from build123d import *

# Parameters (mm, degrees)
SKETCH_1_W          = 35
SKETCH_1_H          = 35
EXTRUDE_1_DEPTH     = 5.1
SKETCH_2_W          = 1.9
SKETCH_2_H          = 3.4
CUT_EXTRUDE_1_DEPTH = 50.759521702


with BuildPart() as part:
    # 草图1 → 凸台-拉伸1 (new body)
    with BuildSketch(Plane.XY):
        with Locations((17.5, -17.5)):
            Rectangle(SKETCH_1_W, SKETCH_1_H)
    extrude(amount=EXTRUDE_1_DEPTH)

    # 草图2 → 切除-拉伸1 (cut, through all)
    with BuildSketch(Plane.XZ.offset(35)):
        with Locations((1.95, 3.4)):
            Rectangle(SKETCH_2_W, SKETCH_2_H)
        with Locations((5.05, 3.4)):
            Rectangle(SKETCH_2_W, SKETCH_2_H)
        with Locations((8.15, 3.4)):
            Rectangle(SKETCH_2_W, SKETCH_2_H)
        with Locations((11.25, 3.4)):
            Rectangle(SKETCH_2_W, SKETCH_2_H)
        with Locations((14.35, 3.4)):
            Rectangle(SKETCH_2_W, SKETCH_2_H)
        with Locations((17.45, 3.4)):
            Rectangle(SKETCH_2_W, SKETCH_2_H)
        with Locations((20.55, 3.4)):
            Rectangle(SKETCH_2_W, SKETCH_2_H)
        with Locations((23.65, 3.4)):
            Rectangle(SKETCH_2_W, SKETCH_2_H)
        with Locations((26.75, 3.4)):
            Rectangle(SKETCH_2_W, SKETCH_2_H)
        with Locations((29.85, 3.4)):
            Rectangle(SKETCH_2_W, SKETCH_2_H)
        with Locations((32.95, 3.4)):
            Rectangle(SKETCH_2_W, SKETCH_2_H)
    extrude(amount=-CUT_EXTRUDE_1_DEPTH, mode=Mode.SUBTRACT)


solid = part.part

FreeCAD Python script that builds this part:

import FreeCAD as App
import Part
import Sketcher
from FreeCAD import Vector
Q = App.Units.Quantity

doc = App.newDocument("Part")
params = doc.addObject("Spreadsheet::Sheet", "Params")
for row, (alias, value) in enumerate([
    ("sketch1_width", "35 mm"),
    ("pad1_length", "5.1 mm"),
    ("sketch2_width", "1.9 mm"),
    ("sketch2_height", "3.4 mm"),
], start=1):
    params.set(f"A{row}", alias)
    params.set(f"B{row}", "=" + value)
    params.setAlias(f"B{row}", alias)

body = doc.addObject("PartDesign::Body", "Body")

sketch1 = body.newObject("Sketcher::SketchObject", "Sketch")
sketch1.AttachmentSupport = (doc.getObject("XY_Plane"), [""])
sketch1.MapMode = "FlatFace"
sketch1.addGeometry(Part.LineSegment(Vector(0, 0, 0), Vector(0, -35, 0)), False)
sketch1.addGeometry(Part.LineSegment(Vector(0, -35, 0), Vector(35, -35, 0)), False)
sketch1.addGeometry(Part.LineSegment(Vector(35, -35, 0), Vector(35, 0, 0)), False)
sketch1.addGeometry(Part.LineSegment(Vector(35, 0, 0), Vector(0, 0, 0)), False)
sketch1.addConstraint(Sketcher.Constraint("Coincident", 0, 2, 1, 1))
sketch1.addConstraint(Sketcher.Constraint("Coincident", 1, 2, 2, 1))
sketch1.addConstraint(Sketcher.Constraint("Coincident", 2, 2, 3, 1))
sketch1.addConstraint(Sketcher.Constraint("Coincident", 3, 2, 0, 1))
sketch1.addConstraint(Sketcher.Constraint("Vertical", 0))
sketch1.addConstraint(Sketcher.Constraint("Horizontal", 1))
sketch1.addConstraint(Sketcher.Constraint("Vertical", 2))
sketch1.addConstraint(Sketcher.Constraint("Horizontal", 3))
sketch1.addConstraint(Sketcher.Constraint("Coincident", 3, 2, -1, 1))
sketch1.addConstraint(Sketcher.Constraint("Equal", 3, 0))
sketch1.addConstraint(Sketcher.Constraint("DistanceX", 1, 1, 1, 2, Q("35 mm")))
sketch1.setExpression("Constraints[10]", "Params.sketch1_width")
pad1 = body.newObject("PartDesign::Pad", "Pad")
pad1.Profile = sketch1
pad1.setExpression("Length", "Params.pad1_length")

sketch2 = body.newObject("Sketcher::SketchObject", "Sketch001")
sketch2.AttachmentSupport = (doc.getObject("XZ_Plane"), [""])
sketch2.MapMode = "FlatFace"
sketch2.AttachmentOffset = App.Placement(Vector(0, 0, 35), App.Rotation())
sketch2.addGeometry(Part.LineSegment(Vector(1, 5.1, 0), Vector(1, 1.7, 0)), False)
sketch2.addGeometry(Part.LineSegment(Vector(1, 1.7, 0), Vector(2.9, 1.7, 0)), False)
sketch2.addGeometry(Part.LineSegment(Vector(2.9, 1.7, 0), Vector(2.9, 5.1, 0)), False)
sketch2.addGeometry(Part.LineSegment(Vector(2.9, 5.1, 0), Vector(1, 5.1, 0)), False)
sketch2.addGeometry(Part.LineSegment(Vector(4.1, 5.1, 0), Vector(4.1, 1.7, 0)), False)
sketch2.addGeometry(Part.LineSegment(Vector(4.1, 1.7, 0), Vector(6, 1.7, 0)), False)
sketch2.addGeometry(Part.LineSegment(Vector(6, 1.7, 0), Vector(6, 5.1, 0)), False)
sketch2.addGeometry(Part.LineSegment(Vector(6, 5.1, 0), Vector(4.1, 5.1, 0)), False)
sketch2.addGeometry(Part.LineSegment(Vector(7.2, 5.1, 0), Vector(7.2, 1.7, 0)), False)
sketch2.addGeometry(Part.LineSegment(Vector(7.2, 1.7, 0), Vector(9.1, 1.7, 0)), False)
sketch2.addGeometry(Part.LineSegment(Vector(9.1, 1.7, 0), Vector(9.1, 5.1, 0)), False)
sketch2.addGeometry(Part.LineSegment(Vector(9.1, 5.1, 0), Vector(7.2, 5.1, 0)), False)
sketch2.addGeometry(Part.LineSegment(Vector(10.3, 5.1, 0), Vector(10.3, 1.7, 0)), False)
sketch2.addGeometry(Part.LineSegment(Vector(10.3, 1.7, 0), Vector(12.2, 1.7, 0)), False)
sketch2.addGeometry(Part.LineSegment(Vector(12.2, 1.7, 0), Vector(12.2, 5.1, 0)), False)
sketch2.addGeometry(Part.LineSegment(Vector(12.2, 5.1, 0), Vector(10.3, 5.1, 0)), False)
sketch2.addGeometry(Part.LineSegment(Vector(13.4, 5.1, 0), Vector(13.4, 1.7, 0)), False)
sketch2.addGeometry(Part.LineSegment(Vector(13.4, 1.7, 0), Vector(15.3, 1.7, 0)), False)
sketch2.addGeometry(Part.LineSegment(Vector(15.3, 1.7, 0), Vector(15.3, 5.1, 0)), False)
sketch2.addGeometry(Part.LineSegment(Vector(15.3, 5.1, 0), Vector(13.4, 5.1, 0)), False)
sketch2.addGeometry(Part.LineSegment(Vector(16.5, 5.1, 0), Vector(16.5, 1.7, 0)), False)
sketch2.addGeometry(Part.LineSegment(Vector(16.5, 1.7, 0), Vector(18.4, 1.7, 0)), False)
sketch2.addGeometry(Part.LineSegment(Vector(18.4, 1.7, 0), Vector(18.4, 5.1, 0)), False)
sketch2.addGeometry(Part.LineSegment(Vector(18.4, 5.1, 0), Vector(16.5, 5.1, 0)), False)
sketch2.addGeometry(Part.LineSegment(Vector(19.6, 5.1, 0), Vector(19.6, 1.7, 0)), False)
sketch2.addGeometry(Part.LineSegment(Vector(19.6, 1.7, 0), Vector(21.5, 1.7, 0)), False)
sketch2.addGeometry(Part.LineSegment(Vector(21.5, 1.7, 0), Vector(21.5, 5.1, 0)), False)
sketch2.addGeometry(Part.LineSegment(Vector(21.5, 5.1, 0), Vector(19.6, 5.1, 0)), False)
sketch2.addGeometry(Part.LineSegment(Vector(22.7, 5.1, 0), Vector(22.7, 1.7, 0)), False)
sketch2.addGeometry(Part.LineSegment(Vector(22.7, 1.7, 0), Vector(24.6, 1.7, 0)), False)
sketch2.addGeometry(Part.LineSegment(Vector(24.6, 1.7, 0), Vector(24.6, 5.1, 0)), False)
sketch2.addGeometry(Part.LineSegment(Vector(24.6, 5.1, 0), Vector(22.7, 5.1, 0)), False)
sketch2.addGeometry(Part.LineSegment(Vector(25.8, 5.1, 0), Vector(25.8, 1.7, 0)), False)
sketch2.addGeometry(Part.LineSegment(Vector(25.8, 1.7, 0), Vector(27.7, 1.7, 0)), False)
sketch2.addGeometry(Part.LineSegment(Vector(27.7, 1.7, 0), Vector(27.7, 5.1, 0)), False)
sketch2.addGeometry(Part.LineSegment(Vector(27.7, 5.1, 0), Vector(25.8, 5.1, 0)), False)
sketch2.addGeometry(Part.LineSegment(Vector(28.9, 5.1, 0), Vector(28.9, 1.7, 0)), False)
sketch2.addGeometry(Part.LineSegment(Vector(28.9, 1.7, 0), Vector(30.8, 1.7, 0)), False)
sketch2.addGeometry(Part.LineSegment(Vector(30.8, 1.7, 0), Vector(30.8, 5.1, 0)), False)
sketch2.addGeometry(Part.LineSegment(Vector(30.8, 5.1, 0), Vector(28.9, 5.1, 0)), False)
sketch2.addGeometry(Part.LineSegment(Vector(32, 5.1, 0), Vector(32, 1.7, 0)), False)
sketch2.addGeometry(Part.LineSegment(Vector(32, 1.7, 0), Vector(33.9, 1.7, 0)), False)
sketch2.addGeometry(Part.LineSegment(Vector(33.9, 1.7, 0), Vector(33.9, 5.1, 0)), False)
sketch2.addGeometry(Part.LineSegment(Vector(33.9, 5.1, 0), Vector(32, 5.1, 0)), False)
sketch2.addConstraint(Sketcher.Constraint("Coincident", 0, 2, 1, 1))
sketch2.addConstraint(Sketcher.Constraint("Coincident", 1, 2, 2, 1))
sketch2.addConstraint(Sketcher.Constraint("Coincident", 2, 2, 3, 1))
sketch2.addConstraint(Sketcher.Constraint("Coincident", 3, 2, 0, 1))
sketch2.addConstraint(Sketcher.Constraint("Coincident", 4, 2, 5, 1))
sketch2.addConstraint(Sketcher.Constraint("Coincident", 5, 2, 6, 1))
sketch2.addConstraint(Sketcher.Constraint("Coincident", 6, 2, 7, 1))
sketch2.addConstraint(Sketcher.Constraint("Coincident", 7, 2, 4, 1))
sketch2.addConstraint(Sketcher.Constraint("Coincident", 8, 2, 9, 1))
sketch2.addConstraint(Sketcher.Constraint("Coincident", 9, 2, 10, 1))
sketch2.addConstraint(Sketcher.Constraint("Coincident", 10, 2, 11, 1))
sketch2.addConstraint(Sketcher.Constraint("Coincident", 11, 2, 8, 1))
sketch2.addConstraint(Sketcher.Constraint("Coincident", 12, 2, 13, 1))
sketch2.addConstraint(Sketcher.Constraint("Coincident", 13, 2, 14, 1))
sketch2.addConstraint(Sketcher.Constraint("Coincident", 14, 2, 15, 1))
sketch2.addConstraint(Sketcher.Constraint("Coincident", 15, 2, 12, 1))
sketch2.addConstraint(Sketcher.Constraint("Coincident", 16, 2, 17, 1))
sketch2.addConstraint(Sketcher.Constraint("Coincident", 17, 2, 18, 1))
sketch2.addConstraint(Sketcher.Constraint("Coincident", 18, 2, 19, 1))
sketch2.addConstraint(Sketcher.Constraint("Coincident", 19, 2, 16, 1))
sketch2.addConstraint(Sketcher.Constraint("Coincident", 20, 2, 21, 1))
sketch2.addConstraint(Sketcher.Constraint("Coincident", 21, 2, 22, 1))
sketch2.addConstraint(Sketcher.Constraint("Coincident", 22, 2, 23, 1))
sketch2.addConstraint(Sketcher.Constraint("Coincident", 23, 2, 20, 1))
sketch2.addConstraint(Sketcher.Constraint("Coincident", 24, 2, 25, 1))
sketch2.addConstraint(Sketcher.Constraint("Coincident", 25, 2, 26, 1))
sketch2.addConstraint(Sketcher.Constraint("Coincident", 26, 2, 27, 1))
sketch2.addConstraint(Sketcher.Constraint("Coincident", 27, 2, 24, 1))
sketch2.addConstraint(Sketcher.Constraint("Coincident", 28, 2, 29, 1))
sketch2.addConstraint(Sketcher.Constraint("Coincident", 29, 2, 30, 1))
sketch2.addConstraint(Sketcher.Constraint("Coincident", 30, 2, 31, 1))
sketch2.addConstraint(Sketcher.Constraint("Coincident", 31, 2, 28, 1))
sketch2.addConstraint(Sketcher.Constraint("Coincident", 32, 2, 33, 1))
sketch2.addConstraint(Sketcher.Constraint("Coincident", 33, 2, 34, 1))
sketch2.addConstraint(Sketcher.Constraint("Coincident", 34, 2, 35, 1))
sketch2.addConstraint(Sketcher.Constraint("Coincident", 35, 2, 32, 1))
sketch2.addConstraint(Sketcher.Constraint("Coincident", 36, 2, 37, 1))
sketch2.addConstraint(Sketcher.Constraint("Coincident", 37, 2, 38, 1))
sketch2.addConstraint(Sketcher.Constraint("Coincident", 38, 2, 39, 1))
sketch2.addConstraint(Sketcher.Constraint("Coincident", 39, 2, 36, 1))
sketch2.addConstraint(Sketcher.Constraint("Coincident", 40, 2, 41, 1))
sketch2.addConstraint(Sketcher.Constraint("Coincident", 41, 2, 42, 1))
sketch2.addConstraint(Sketcher.Constraint("Coincident", 42, 2, 43, 1))
sketch2.addConstraint(Sketcher.Constraint("Coincident", 43, 2, 40, 1))
sketch2.addConstraint(Sketcher.Constraint("Vertical", 0))
sketch2.addConstraint(Sketcher.Constraint("Horizontal", 1))
sketch2.addConstraint(Sketcher.Constraint("Vertical", 2))
sketch2.addConstraint(Sketcher.Constraint("Horizontal", 3))
sketch2.addConstraint(Sketcher.Constraint("Vertical", 4))
sketch2.addConstraint(Sketcher.Constraint("Horizontal", 5))
sketch2.addConstraint(Sketcher.Constraint("Vertical", 6))
sketch2.addConstraint(Sketcher.Constraint("Horizontal", 7))
sketch2.addConstraint(Sketcher.Constraint("Vertical", 8))
sketch2.addConstraint(Sketcher.Constraint("Horizontal", 9))
sketch2.addConstraint(Sketcher.Constraint("Vertical", 10))
sketch2.addConstraint(Sketcher.Constraint("Horizontal", 11))
sketch2.addConstraint(Sketcher.Constraint("Vertical", 12))
sketch2.addConstraint(Sketcher.Constraint("Horizontal", 13))
sketch2.addConstraint(Sketcher.Constraint("Vertical", 14))
sketch2.addConstraint(Sketcher.Constraint("Horizontal", 15))
sketch2.addConstraint(Sketcher.Constraint("Vertical", 16))
sketch2.addConstraint(Sketcher.Constraint("Horizontal", 17))
sketch2.addConstraint(Sketcher.Constraint("Vertical", 18))
sketch2.addConstraint(Sketcher.Constraint("Horizontal", 19))
sketch2.addConstraint(Sketcher.Constraint("Vertical", 20))
sketch2.addConstraint(Sketcher.Constraint("Horizontal", 21))
sketch2.addConstraint(Sketcher.Constraint("Vertical", 22))
sketch2.addConstraint(Sketcher.Constraint("Horizontal", 23))
sketch2.addConstraint(Sketcher.Constraint("Vertical", 24))
sketch2.addConstraint(Sketcher.Constraint("Horizontal", 25))
sketch2.addConstraint(Sketcher.Constraint("Vertical", 26))
sketch2.addConstraint(Sketcher.Constraint("Horizontal", 27))
sketch2.addConstraint(Sketcher.Constraint("Vertical", 28))
sketch2.addConstraint(Sketcher.Constraint("Horizontal", 29))
sketch2.addConstraint(Sketcher.Constraint("Vertical", 30))
sketch2.addConstraint(Sketcher.Constraint("Horizontal", 31))
sketch2.addConstraint(Sketcher.Constraint("Vertical", 32))
sketch2.addConstraint(Sketcher.Constraint("Horizontal", 33))
sketch2.addConstraint(Sketcher.Constraint("Vertical", 34))
sketch2.addConstraint(Sketcher.Constraint("Horizontal", 35))
sketch2.addConstraint(Sketcher.Constraint("Vertical", 36))
sketch2.addConstraint(Sketcher.Constraint("Horizontal", 37))
sketch2.addConstraint(Sketcher.Constraint("Vertical", 38))
sketch2.addConstraint(Sketcher.Constraint("Horizontal", 39))
sketch2.addConstraint(Sketcher.Constraint("Vertical", 40))
sketch2.addConstraint(Sketcher.Constraint("Horizontal", 41))
sketch2.addConstraint(Sketcher.Constraint("Vertical", 42))
sketch2.addConstraint(Sketcher.Constraint("Horizontal", 43))
sketch2.addConstraint(Sketcher.Constraint("Horizontal", 1, 2, 4, 2))
sketch2.addConstraint(Sketcher.Constraint("Horizontal", 3, 2, 6, 2))
sketch2.addConstraint(Sketcher.Constraint("Horizontal", 5, 2, 8, 2))
sketch2.addConstraint(Sketcher.Constraint("Horizontal", 7, 2, 10, 2))
sketch2.addConstraint(Sketcher.Constraint("Horizontal", 9, 2, 12, 2))
sketch2.addConstraint(Sketcher.Constraint("Horizontal", 11, 2, 14, 2))
sketch2.addConstraint(Sketcher.Constraint("Horizontal", 13, 2, 16, 2))
sketch2.addConstraint(Sketcher.Constraint("Horizontal", 15, 2, 18, 2))
sketch2.addConstraint(Sketcher.Constraint("Horizontal", 17, 2, 20, 2))
sketch2.addConstraint(Sketcher.Constraint("Horizontal", 19, 2, 22, 2))
sketch2.addConstraint(Sketcher.Constraint("Horizontal", 21, 2, 24, 2))
sketch2.addConstraint(Sketcher.Constraint("Horizontal", 23, 2, 26, 2))
sketch2.addConstraint(Sketcher.Constraint("Horizontal", 25, 2, 28, 2))
sketch2.addConstraint(Sketcher.Constraint("Horizontal", 27, 2, 30, 2))
sketch2.addConstraint(Sketcher.Constraint("Horizontal", 29, 2, 32, 2))
sketch2.addConstraint(Sketcher.Constraint("Horizontal", 31, 2, 34, 2))
sketch2.addConstraint(Sketcher.Constraint("Horizontal", 33, 2, 36, 2))
sketch2.addConstraint(Sketcher.Constraint("Horizontal", 35, 2, 38, 2))
sketch2.addConstraint(Sketcher.Constraint("Horizontal", 37, 2, 40, 2))
sketch2.addConstraint(Sketcher.Constraint("Horizontal", 39, 2, 42, 2))
sketch2.addConstraint(Sketcher.Constraint("Equal", 3, 5))
sketch2.addConstraint(Sketcher.Constraint("Equal", 7, 9))
sketch2.addConstraint(Sketcher.Constraint("Equal", 11, 13))
sketch2.addConstraint(Sketcher.Constraint("Equal", 15, 17))
sketch2.addConstraint(Sketcher.Constraint("Equal", 19, 21))
sketch2.addConstraint(Sketcher.Constraint("Equal", 23, 25))
sketch2.addConstraint(Sketcher.Constraint("Equal", 27, 29))
sketch2.addConstraint(Sketcher.Constraint("Equal", 31, 33))
sketch2.addConstraint(Sketcher.Constraint("Equal", 35, 37))
sketch2.addConstraint(Sketcher.Constraint("Equal", 39, 41))
sketch2.addConstraint(Sketcher.Constraint("DistanceX", 1, 1, 1, 2, Q("1.9 mm")))
sketch2.addConstraint(Sketcher.Constraint("DistanceY", 0, 2, 0, 1, Q("3.4 mm")))
sketch2.addConstraint(Sketcher.Constraint("DistanceX", -1, 1, 0, 2, Q("1 mm")))
sketch2.addConstraint(Sketcher.Constraint("DistanceX", -1, 1, 5, 2, Q("6 mm")))
sketch2.addConstraint(Sketcher.Constraint("DistanceX", -1, 1, 40, 2, Q("32 mm")))
sketch2.addConstraint(Sketcher.Constraint("DistanceX", 4, 2, 9, 2, Q("5 mm")))
sketch2.addConstraint(Sketcher.Constraint("DistanceX", 8, 2, 13, 2, Q("5 mm")))
sketch2.addConstraint(Sketcher.Constraint("DistanceX", 12, 2, 17, 2, Q("5 mm")))
sketch2.addConstraint(Sketcher.Constraint("DistanceX", 16, 2, 21, 2, Q("5 mm")))
sketch2.addConstraint(Sketcher.Constraint("DistanceX", 20, 2, 25, 2, Q("5 mm")))
sketch2.addConstraint(Sketcher.Constraint("DistanceX", 24, 2, 29, 2, Q("5 mm")))
sketch2.addConstraint(Sketcher.Constraint("DistanceX", 28, 2, 33, 2, Q("5 mm")))
sketch2.addConstraint(Sketcher.Constraint("DistanceX", 32, 2, 37, 2, Q("5 mm")))
sketch2.addConstraint(Sketcher.Constraint("DistanceY", -1, 1, 0, 2, Q("1.7 mm")))
sketch2.setExpression("Constraints[118]", "Params.sketch2_width")
sketch2.setExpression("Constraints[119]", "Params.sketch2_height")
pocket1 = body.newObject("PartDesign::Pocket", "Pocket")
pocket1.Profile = sketch2
pocket1.Type = "ThroughAll"

doc.recompute()
